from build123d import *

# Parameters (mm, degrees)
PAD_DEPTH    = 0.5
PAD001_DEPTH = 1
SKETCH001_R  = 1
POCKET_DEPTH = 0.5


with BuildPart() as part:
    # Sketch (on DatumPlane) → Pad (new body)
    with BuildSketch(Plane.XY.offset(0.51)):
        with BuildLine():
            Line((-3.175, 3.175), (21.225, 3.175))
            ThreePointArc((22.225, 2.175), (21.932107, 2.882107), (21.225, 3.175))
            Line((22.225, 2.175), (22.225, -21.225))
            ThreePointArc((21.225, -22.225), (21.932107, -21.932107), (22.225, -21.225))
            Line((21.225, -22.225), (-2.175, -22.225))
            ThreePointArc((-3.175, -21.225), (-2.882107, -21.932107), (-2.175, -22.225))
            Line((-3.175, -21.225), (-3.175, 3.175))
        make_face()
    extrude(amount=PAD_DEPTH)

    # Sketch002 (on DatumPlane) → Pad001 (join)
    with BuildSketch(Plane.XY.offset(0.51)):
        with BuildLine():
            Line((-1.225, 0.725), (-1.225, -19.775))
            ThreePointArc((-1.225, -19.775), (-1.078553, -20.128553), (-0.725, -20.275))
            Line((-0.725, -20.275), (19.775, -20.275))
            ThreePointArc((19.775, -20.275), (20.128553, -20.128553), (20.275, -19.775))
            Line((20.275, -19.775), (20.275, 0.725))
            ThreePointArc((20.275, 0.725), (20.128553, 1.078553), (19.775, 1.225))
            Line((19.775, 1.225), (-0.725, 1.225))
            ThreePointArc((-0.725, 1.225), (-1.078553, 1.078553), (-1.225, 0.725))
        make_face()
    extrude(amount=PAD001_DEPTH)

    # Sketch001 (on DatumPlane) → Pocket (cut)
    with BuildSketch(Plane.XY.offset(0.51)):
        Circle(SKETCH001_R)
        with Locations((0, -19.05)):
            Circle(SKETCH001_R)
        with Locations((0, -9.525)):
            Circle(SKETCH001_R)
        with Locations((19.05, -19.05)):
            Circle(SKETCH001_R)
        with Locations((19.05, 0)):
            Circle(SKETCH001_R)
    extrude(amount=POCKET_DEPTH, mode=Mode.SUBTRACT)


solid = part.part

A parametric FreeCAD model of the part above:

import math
import FreeCAD as App
import Part
import Sketcher

doc = App.newDocument("Part")
body = doc.addObject("PartDesign::Body", "Body")

# Sketch on XY plane
sketch1 = doc.addObject("Sketcher::SketchObject", "Sketch")
body.addObject(sketch1)
sketch1.AttachmentSupport = (doc.XY_Plane, [""])
sketch1.MapMode = "FlatFace"
sketch1.AttachmentOffset = App.Placement(App.Vector(0, 0, 0.51), App.Rotation())
sketch1.addGeometry(Part.LineSegment(App.Vector(21.2, 3.2, 0), App.Vector(-3.2, 3.2, 0)), False)
sketch1.addGeometry(Part.LineSegment(App.Vector(-3.2, 3.2, 0), App.Vector(-3.2, -21.2, 0)), False)
sketch1.addGeometry(Part.ArcOfCircle(Part.Circle(App.Vector(-2.2, -21.2, 0), App.Vector(0, 0, 1), 1), math.radians(180), math.radians(270)), False)
sketch1.addGeometry(Part.LineSegment(App.Vector(-2.2, -22.2, 0), App.Vector(21.2, -22.2, 0)), False)
sketch1.addGeometry(Part.ArcOfCircle(Part.Circle(App.Vector(21.2, -21.2, 0), App.Vector(0, 0, 1), 1), math.radians(-90), math.radians(0)), False)
sketch1.addGeometry(Part.LineSegment(App.Vector(22.2, -21.2, 0), App.Vector(22.2, 2.2, 0)), False)
sketch1.addGeometry(Part.ArcOfCircle(Part.Circle(App.Vector(21.2, 2.2, 0), App.Vector(0, 0, 1), 1), math.radians(0), math.radians(90)), False)
sketch1.addConstraint(Sketcher.Constraint("Coincident", 0, 2, 1, 1))
sketch1.addConstraint(Sketcher.Constraint("Tangent", 1, 2, 2, 1))
sketch1.addConstraint(Sketcher.Constraint("Tangent", 2, 2, 3, 1))
sketch1.addConstraint(Sketcher.Constraint("Tangent", 3, 2, 4, 1))
sketch1.addConstraint(Sketcher.Constraint("Tangent", 4, 2, 5, 1))
sketch1.addConstraint(Sketcher.Constraint("Tangent", 5, 2, 6, 1))
sketch1.addConstraint(Sketcher.Constraint("Tangent", 6, 2, 0, 1))
sketch1.addConstraint(Sketcher.Constraint("Horizontal", 0))
sketch1.addConstraint(Sketcher.Constraint("Vertical", 1))
sketch1.addConstraint(Sketcher.Constraint("Horizontal", 3))
sketch1.addConstraint(Sketcher.Constraint("Vertical", 5))
sketch1.addConstraint(Sketcher.Constraint("Equal", 2, 4))
sketch1.addConstraint(Sketcher.Constraint("Equal", 4, 6))
sketch1.addConstraint(Sketcher.Constraint("Equal", 0, 1))
sketch1.addConstraint(Sketcher.Constraint("Radius", 2, 0.999999))
sketch1.addConstraint(Sketcher.Constraint("DistanceX", 0, 2, 0, 1, 24.4))
sketch1.addConstraint(Sketcher.Constraint("DistanceX", 2, 3, -1, 1, 2.175001))
sketch1.addConstraint(Sketcher.Constraint("DistanceY", 2, 3, -1, 1, 21.225001))
pad1 = doc.addObject("PartDesign::Pad", "Pad")
body.addObject(pad1)
pad1.Profile = sketch1
pad1.Length = 0.5

# Sketch on XY plane
sketch2 = doc.addObject("Sketcher::SketchObject", "Sketch001")
body.addObject(sketch2)
sketch2.AttachmentSupport = (doc.XY_Plane, [""])
sketch2.MapMode = "FlatFace"
sketch2.AttachmentOffset = App.Placement(App.Vector(0, 0, 0.51), App.Rotation())
sketch2.addGeometry(Part.LineSegment(App.Vector(-1.2, 0.7, 0), App.Vector(-1.2, -19.8, 0)), False)
sketch2.addGeometry(Part.ArcOfCircle(Part.Circle(App.Vector(-0.7, -19.8, 0), App.Vector(0, 0, 1), 0.5), math.radians(-180), math.radians(-90)), False)
sketch2.addGeometry(Part.LineSegment(App.Vector(-0.7, -20.3, 0), App.Vector(19.8, -20.3, 0)), False)
sketch2.addGeometry(Part.ArcOfCircle(Part.Circle(App.Vector(19.8, -19.8, 0), App.Vector(0, 0, 1), 0.5), math.radians(-90), math.radians(0)), False)
sketch2.addGeometry(Part.LineSegment(App.Vector(20.3, -19.8, 0), App.Vector(20.3, 0.7, 0)), False)
sketch2.addGeometry(Part.ArcOfCircle(Part.Circle(App.Vector(19.8, 0.7, 0), App.Vector(0, 0, 1), 0.5), math.radians(0), math.radians(90)), False)
sketch2.addGeometry(Part.LineSegment(App.Vector(19.8, 1.2, 0), App.Vector(-0.7, 1.2, 0)), False)
sketch2.addGeometry(Part.ArcOfCircle(Part.Circle(App.Vector(-0.7, 0.7, 0), App.Vector(0, 0, 1), 0.5), math.radians(90), math.radians(180)), False)
sketch2.addConstraint(Sketcher.Constraint("Coincident", 0, 2, 1, 1))
sketch2.addConstraint(Sketcher.Constraint("Coincident", 1, 2, 2, 1))
sketch2.addConstraint(Sketcher.Constraint("Coincident", 2, 2, 3, 1))
sketch2.addConstraint(Sketcher.Constraint("Coincident", 3, 2, 4, 1))
sketch2.addConstraint(Sketcher.Constraint("Coincident", 4, 2, 5, 1))
sketch2.addConstraint(Sketcher.Constraint("Coincident", 5, 2, 6, 1))
sketch2.addConstraint(Sketcher.Constraint("Coincident", 6, 2, 7, 1))
sketch2.addConstraint(Sketcher.Constraint("Coincident", 7, 2, 0, 1))
sketch2.addConstraint(Sketcher.Constraint("Vertical", 0))
sketch2.addConstraint(Sketcher.Constraint("Horizontal", 2))
sketch2.addConstraint(Sketcher.Constraint("Vertical", 4))
sketch2.addConstraint(Sketcher.Constraint("Horizontal", 6))
sketch2.addConstraint(Sketcher.Constraint("Equal", 1, 3))
sketch2.addConstraint(Sketcher.Constraint("Equal", 3, 5))
sketch2.addConstraint(Sketcher.Constraint("Equal", 5, 7))
sketch2.addConstraint(Sketcher.Constraint("Horizontal", 3, 3, 0, 2))
sketch2.addConstraint(Sketcher.Constraint("Horizontal", 0, 2, 3, 2))
sketch2.addConstraint(Sketcher.Constraint("Horizontal", 7, 3, 4, 2))
sketch2.addConstraint(Sketcher.Constraint("Horizontal", 4, 2, 7, 2))
sketch2.addConstraint(Sketcher.Constraint("Vertical", 7, 3, 1, 2))
sketch2.addConstraint(Sketcher.Constraint("Vertical", 5, 3, 2, 2))
sketch2.addConstraint(Sketcher.Constraint("Vertical", 2, 2, 5, 2))
sketch2.addConstraint(Sketcher.Constraint("Vertical", 1, 2, 6, 2))
sketch2.addConstraint(Sketcher.Constraint("Equal", 6, 0))
sketch2.addConstraint(Sketcher.Constraint("Radius", 1, 0.500001))
sketch2.addConstraint(Sketcher.Constraint("DistanceX", 2, 1, 2, 2, 20.5))
sketch2.addConstraint(Sketcher.Constraint("DistanceX", 1, 3, -1, 1, 0.724999))
sketch2.addConstraint(Sketcher.Constraint("DistanceY", 1, 3, -1, 1, 19.774999))
pad2 = doc.addObject("PartDesign::Pad", "Pad001")
body.addObject(pad2)
pad2.Profile = sketch2
pad2.Length = 1

# Sketch on XY plane
sketch3 = doc.addObject("Sketcher::SketchObject", "Sketch002")
body.addObject(sketch3)
sketch3.AttachmentSupport = (doc.XY_Plane, [""])
sketch3.MapMode = "FlatFace"
sketch3.AttachmentOffset = App.Placement(App.Vector(0, 0, 0.51), App.Rotation())
sketch3.addGeometry(Part.Circle(App.Vector(0, 0, 0), App.Vector(0, 0, 1), 1), False)
sketch3.addGeometry(Part.Circle(App.Vector(0, -19.1, 0), App.Vector(0, 0, 1), 1), False)
sketch3.addGeometry(Part.Circle(App.Vector(0, -9.5, 0), App.Vector(0, 0, 1), 1), False)
sketch3.addGeometry(Part.Circle(App.Vector(19.1, -19.1, 0), App.Vector(0, 0, 1), 1), False)
sketch3.addGeometry(Part.Circle(App.Vector(19.1, 0, 0), App.Vector(0, 0, 1), 1), False)
sketch3.addConstraint(Sketcher.Constraint("Coincident", 0, 3, -1, 1))
sketch3.addConstraint(Sketcher.Constraint("Equal", 0, 1))
sketch3.addConstraint(Sketcher.Constraint("Equal", 1, 2))
sketch3.addConstraint(Sketcher.Constraint("Equal", 2, 3))
sketch3.addConstraint(Sketcher.Constraint("Equal", 3, 4))
sketch3.addConstraint(Sketcher.Constraint("PointOnObject", 1, 3, -2))
sketch3.addConstraint(Sketcher.Constraint("PointOnObject", 2, 3, -2))
sketch3.addConstraint(Sketcher.Constraint("PointOnObject", 4, 3, -1))
sketch3.addConstraint(Sketcher.Constraint("Horizontal", 1, 3, 3, 3))
sketch3.addConstraint(Sketcher.Constraint("Vertical", 3, 3, 4, 3))
sketch3.addConstraint(Sketcher.Constraint("Diameter", 0, 2.0))
sketch3.addConstraint(Sketcher.Constraint("DistanceY", 1, 3, -1, 1, 19.05))
sketch3.addConstraint(Sketcher.Constraint("DistanceX", -1, 1, 3, 3, 19.05))
sketch3.addConstraint(Sketcher.Constraint("DistanceY", 2, 3, -1, 1, 9.525))
pocket1 = doc.addObject("PartDesign::Pocket", "Pocket")
body.addObject(pocket1)
pocket1.Profile = sketch3
pocket1.Length = 0.5
pocket1.Reversed = True

doc.recompute()
